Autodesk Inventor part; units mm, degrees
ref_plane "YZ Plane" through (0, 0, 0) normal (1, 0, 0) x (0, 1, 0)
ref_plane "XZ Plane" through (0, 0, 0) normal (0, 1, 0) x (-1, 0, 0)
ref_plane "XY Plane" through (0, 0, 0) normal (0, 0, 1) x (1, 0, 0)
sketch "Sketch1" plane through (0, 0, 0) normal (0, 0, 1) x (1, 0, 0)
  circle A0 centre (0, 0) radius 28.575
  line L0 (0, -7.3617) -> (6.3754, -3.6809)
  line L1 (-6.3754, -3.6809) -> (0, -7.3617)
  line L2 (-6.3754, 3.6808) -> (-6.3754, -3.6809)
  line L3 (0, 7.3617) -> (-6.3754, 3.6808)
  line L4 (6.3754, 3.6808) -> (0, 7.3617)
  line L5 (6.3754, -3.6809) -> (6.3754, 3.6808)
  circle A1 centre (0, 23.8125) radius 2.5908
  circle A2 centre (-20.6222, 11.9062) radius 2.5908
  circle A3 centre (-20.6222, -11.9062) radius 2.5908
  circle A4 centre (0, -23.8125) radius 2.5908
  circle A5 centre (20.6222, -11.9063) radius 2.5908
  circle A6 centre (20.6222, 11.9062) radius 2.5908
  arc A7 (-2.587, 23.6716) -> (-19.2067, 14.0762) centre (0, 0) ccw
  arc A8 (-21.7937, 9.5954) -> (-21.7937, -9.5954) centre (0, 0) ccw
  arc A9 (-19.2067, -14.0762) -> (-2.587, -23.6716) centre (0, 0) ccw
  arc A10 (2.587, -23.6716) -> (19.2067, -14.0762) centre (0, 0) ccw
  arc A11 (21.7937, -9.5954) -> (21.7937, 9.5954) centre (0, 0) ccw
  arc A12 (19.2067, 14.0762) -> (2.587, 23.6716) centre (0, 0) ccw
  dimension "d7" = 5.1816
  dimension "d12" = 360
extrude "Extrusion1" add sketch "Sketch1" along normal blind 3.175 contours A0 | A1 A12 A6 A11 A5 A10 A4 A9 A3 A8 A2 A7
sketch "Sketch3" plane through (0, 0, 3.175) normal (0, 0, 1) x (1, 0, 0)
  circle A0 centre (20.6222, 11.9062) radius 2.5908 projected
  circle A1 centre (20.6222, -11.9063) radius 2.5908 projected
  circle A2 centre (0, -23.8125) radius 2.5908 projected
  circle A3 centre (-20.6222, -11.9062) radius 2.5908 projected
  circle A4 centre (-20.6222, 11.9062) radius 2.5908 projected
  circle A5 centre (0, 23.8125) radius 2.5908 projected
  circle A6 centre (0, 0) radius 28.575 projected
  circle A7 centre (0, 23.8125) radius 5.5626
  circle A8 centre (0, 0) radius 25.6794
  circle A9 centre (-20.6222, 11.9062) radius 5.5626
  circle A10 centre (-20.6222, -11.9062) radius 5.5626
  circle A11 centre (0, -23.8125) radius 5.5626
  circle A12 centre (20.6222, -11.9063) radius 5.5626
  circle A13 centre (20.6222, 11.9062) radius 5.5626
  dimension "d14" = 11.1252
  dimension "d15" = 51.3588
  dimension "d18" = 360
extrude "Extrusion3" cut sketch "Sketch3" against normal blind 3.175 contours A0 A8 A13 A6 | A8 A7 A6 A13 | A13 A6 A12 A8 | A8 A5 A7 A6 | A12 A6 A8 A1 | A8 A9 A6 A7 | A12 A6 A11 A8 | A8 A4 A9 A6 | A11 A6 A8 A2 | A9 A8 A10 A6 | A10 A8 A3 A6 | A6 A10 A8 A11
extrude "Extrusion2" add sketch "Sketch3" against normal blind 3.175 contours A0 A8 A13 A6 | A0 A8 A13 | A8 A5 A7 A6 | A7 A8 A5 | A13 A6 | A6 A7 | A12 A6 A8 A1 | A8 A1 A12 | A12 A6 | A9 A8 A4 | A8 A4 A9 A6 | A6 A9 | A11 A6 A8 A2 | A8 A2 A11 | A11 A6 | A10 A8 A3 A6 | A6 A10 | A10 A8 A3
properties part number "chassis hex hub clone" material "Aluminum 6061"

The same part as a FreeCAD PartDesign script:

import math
import FreeCAD as App
import Part
import Sketcher

V = App.Vector
Q = App.Units.Quantity


def add_polygon(sketch, points):
    """Adds a closed chain of lines whose ends are joined by coincident constraints."""
    first, n = sketch.GeometryCount, len(points)
    for a, b in zip(points, points[1:] + points[:1]):
        sketch.addGeometry(Part.LineSegment(App.Vector(*a, 0), App.Vector(*b, 0)), False)
    for i in range(n):
        sketch.addConstraint(Sketcher.Constraint("Coincident", first + i, 2, first + (i + 1) % n, 1))

doc = App.newDocument("Part")
params = doc.addObject("Spreadsheet::Sheet", "Params")
for row, (alias, value) in enumerate([
    ("sketch1_diameter", "0.204 in"),
    ("sketch1_diameter2", "2.25 in"),
    ("pad1_length", "0.125 in"),
    ("sketch2_radius", "1.011 in"),
    ("sketch2_diameter", "2.25 in"),
    ("sketch2_radius2", "0.102 in"),
    ("pocket1_length", "0.125 in"),
    ("sketch3_diameter", "0.438 in"),
    ("sketch3_diameter2", "0.204 in"),
    ("pad2_length", "0.125 in"),
], start=1):
    params.set(f"A{row}", alias)
    params.set(f"B{row}", "=" + value)
    params.setAlias(f"B{row}", alias)

body = doc.addObject("PartDesign::Body", "Body")

# Sketch on XY plane
sketch1 = doc.addObject("Sketcher::SketchObject", "Sketch")
body.addObject(sketch1)
sketch1.AttachmentSupport = (doc.XY_Plane, [""])
sketch1.MapMode = "FlatFace"
sketch1.addGeometry(Part.Circle(V(0, 0, 0), V(0, 0, 1), 28.575), False)  # 0
sketch1.addGeometry(Part.Circle(V(0, 23.8125, 0), V(0, 0, 1), 2.5908), False)  # 1
sketch1.addGeometry(Part.Circle(V(-20.6222, 11.9062, 0), V(0, 0, 1), 2.5908), False)  # 2
sketch1.addGeometry(Part.Circle(V(-20.6222, -11.9062, 0), V(0, 0, 1), 2.5908), False)  # 3
sketch1.addGeometry(Part.Circle(V(0, -23.8125, 0), V(0, 0, 1), 2.5908), False)  # 4
sketch1.addGeometry(Part.Circle(V(20.6222, -11.9063, 0), V(0, 0, 1), 2.5908), False)  # 5
sketch1.addGeometry(Part.Circle(V(20.6222, 11.9062, 0), V(0, 0, 1), 2.5908), False)  # 6
add_polygon(sketch1, [(6.3754, -3.6809), (0, -7.3617), (-6.3754, -3.6809), (-6.3754, 3.6808), (0, 7.3617), (6.3754, 3.6808)])  # lines 7-12
sketch1.addConstraint([
    Sketcher.Constraint("Vertical", 9),
    Sketcher.Constraint("Vertical", 12),
    Sketcher.Constraint("Coincident", 0, 3, -1, 1),
    Sketcher.Constraint("Equal", 1, 2),
    Sketcher.Constraint("Equal", 2, 3),
    Sketcher.Constraint("Equal", 3, 4),
    Sketcher.Constraint("Equal", 4, 5),
    Sketcher.Constraint("Equal", 5, 6),
    Sketcher.Constraint("Symmetric", 1, 3, 4, 3, -1, 1),
    Sketcher.Constraint("Symmetric", 2, 3, 5, 3, -1, 1),
    Sketcher.Constraint("Symmetric", 3, 3, 6, 3, -1, 1),
    Sketcher.Constraint("Symmetric", 7, 2, 10, 2, -1, 1),
    Sketcher.Constraint("Symmetric", 8, 2, 11, 2, -1, 1),
    Sketcher.Constraint("Symmetric", 3, 3, 5, 3, -2),
    Sketcher.Constraint("PointOnObject", 1, 3, -2),
    Sketcher.Constraint("PointOnObject", 7, 2, -2),
    Sketcher.Constraint("Parallel", 7, 10),
    Sketcher.Constraint("Horizontal", 9, 2, 11, 2),
    Sketcher.Constraint("Diameter", 1, Q("0.204 in")),
    Sketcher.Constraint("Diameter", 0, Q("2.25 in")),
    Sketcher.Constraint("Angle", 7, Q("-150.0003 deg")),
    Sketcher.Constraint("DistanceY", -1, 1, 1, 3, Q("0.9375 in")),
    Sketcher.Constraint("DistanceY", -1, 1, 2, 3, Q("0.468748 in")),
    Sketcher.Constraint("DistanceX", 8, 2, -1, 1, Q("0.251 in")),
    Sketcher.Constraint("DistanceY", 9, 1, 9, 2, 7.3617),
    Sketcher.Constraint("DistanceX", 2, 3, -1, 1, Q("0.8119 in")),
])
sketch1.setExpression("Constraints[24]", "Params.sketch1_diameter")
sketch1.setExpression("Constraints[25]", "Params.sketch1_diameter2")
pad1 = doc.addObject("PartDesign::Pad", "Pad")
body.addObject(pad1)
pad1.Profile = sketch1
pad1.setExpression("Length", "Params.pad1_length")

# Sketch on XY plane
sketch2 = doc.addObject("Sketcher::SketchObject", "Sketch001")
body.addObject(sketch2)
sketch2.AttachmentSupport = (doc.XY_Plane, [""])
sketch2.MapMode = "FlatFace"
sketch2.AttachmentOffset = App.Placement(V(0, 0, 0.125 * 25.4), App.Rotation())
sketch2.addGeometry([
    Part.Circle(V(0, 0, 0), V(0, 0, 1), 28.575),  # 0
    Part.ArcOfCircle(Part.Circle(V(20.6222, 11.9062, 0), V(0, 0, 1), 2.5908), math.radians(-16.01615), math.radians(76.016014)),  # 1
    Part.ArcOfCircle(Part.Circle(V(0, 0, 0), V(0, 0, 1), 25.6794), math.radians(-25.837032), math.radians(25.836939)),  # 2
    Part.ArcOfCircle(Part.Circle(V(20.6222, -11.9063, 0), V(0, 0, 1), 2.5908), math.radians(-76.017875), math.radians(16.017595)),  # 3
    Part.ArcOfCircle(Part.Circle(V(0, 0, 0), V(0, 0, 1), 25.6794), math.radians(-85.836889), math.radians(-34.163249)),  # 4
    Part.ArcOfCircle(Part.Circle(V(0, -23.8125, 0), V(0, 0, 1), 2.5908), math.radians(-136.017765), math.radians(-43.982235)),  # 5
    Part.ArcOfCircle(Part.Circle(V(0, 0, 0), V(0, 0, 1), 25.6794), math.radians(-145.837076), math.radians(-94.163111)),  # 6
    Part.ArcOfCircle(Part.Circle(V(-20.6222, -11.9062, 0), V(0, 0, 1), 2.5908), math.radians(163.98385), math.radians(256.016014)),  # 7
    Part.ArcOfCircle(Part.Circle(V(0, 0, 0), V(0, 0, 1), 25.6794), math.radians(154.163061), math.radians(205.836939)),  # 8
    Part.ArcOfCircle(Part.Circle(V(-20.6222, 11.9062, 0), V(0, 0, 1), 2.5908), math.radians(103.983986), math.radians(196.01615)),  # 9
    Part.ArcOfCircle(Part.Circle(V(0, 0, 0), V(0, 0, 1), 25.6794), math.radians(94.163111), math.radians(145.837076)),  # 10
    Part.ArcOfCircle(Part.Circle(V(0, 23.8125, 0), V(0, 0, 1), 2.5908), math.radians(43.982235), math.radians(136.017765)),  # 11
    Part.ArcOfCircle(Part.Circle(V(0, 0, 0), V(0, 0, 1), 25.6794), math.radians(34.162924), math.radians(85.836889)),  # 12
], False)
sketch2.addConstraint([
    Sketcher.Constraint("Coincident", 1, 1, 2, 2),
    Sketcher.Constraint("Coincident", 2, 1, 3, 2),
    Sketcher.Constraint("Coincident", 3, 1, 4, 2),
    Sketcher.Constraint("Coincident", 4, 1, 5, 2),
    Sketcher.Constraint("Coincident", 5, 1, 6, 2),
    Sketcher.Constraint("Coincident", 6, 1, 7, 2),
    Sketcher.Constraint("Coincident", 7, 1, 8, 2),
    Sketcher.Constraint("Coincident", 8, 1, 9, 2),
    Sketcher.Constraint("Coincident", 9, 1, 10, 2),
    Sketcher.Constraint("Coincident", 10, 1, 11, 2),
    Sketcher.Constraint("Coincident", 11, 1, 12, 2),
    Sketcher.Constraint("Coincident", 12, 1, 1, 2),
    Sketcher.Constraint("Coincident", 0, 3, -1, 1),
    Sketcher.Constraint("Coincident", 2, 3, -1, 1),
    Sketcher.Constraint("Coincident", 4, 3, -1, 1),
    Sketcher.Constraint("Coincident", 6, 3, -1, 1),
    Sketcher.Constraint("Coincident", 8, 3, -1, 1),
    Sketcher.Constraint("Coincident", 10, 3, -1, 1),
    Sketcher.Constraint("Coincident", 12, 3, -1, 1),
    Sketcher.Constraint("Equal", 1, 3),
    Sketcher.Constraint("Equal", 2, 4),
    Sketcher.Constraint("Equal", 3, 5),
    Sketcher.Constraint("Equal", 4, 6),
    Sketcher.Constraint("Equal", 5, 7),
    Sketcher.Constraint("Equal", 6, 8),
    Sketcher.Constraint("Equal", 7, 9),
    Sketcher.Constraint("Equal", 8, 10),
    Sketcher.Constraint("Equal", 9, 11),
    Sketcher.Constraint("Equal", 10, 12),
    Sketcher.Constraint("Symmetric", 1, 3, 7, 3, -1, 1),
    Sketcher.Constraint("Symmetric", 3, 3, 9, 3, -1, 1),
    Sketcher.Constraint("Symmetric", 5, 3, 11, 3, -1, 1),
    Sketcher.Constraint("Symmetric", 3, 3, 7, 3, -2),
    Sketcher.Constraint("PointOnObject", 5, 3, -2),
    Sketcher.Constraint("Radius", 2, Q("1.011 in")),
    Sketcher.Constraint("Diameter", 0, Q("2.25 in")),
    Sketcher.Constraint("Radius", 1, Q("0.102 in")),
    Sketcher.Constraint("DistanceY", -1, 1, 1, 3, Q("0.468748 in")),
    Sketcher.Constraint("DistanceY", 5, 3, -1, 1, Q("0.9375 in")),
    Sketcher.Constraint("DistanceX", -1, 1, 1, 3, Q("0.8119 in")),
])
sketch2.setExpression("Constraints[34]", "Params.sketch2_radius")
sketch2.setExpression("Constraints[35]", "Params.sketch2_diameter")
sketch2.setExpression("Constraints[36]", "Params.sketch2_radius2")
pocket1 = doc.addObject("PartDesign::Pocket", "Pocket")
body.addObject(pocket1)
pocket1.Profile = sketch2
pocket1.setExpression("Length", "Params.pocket1_length")

# Sketch on XY plane
sketch3 = doc.addObject("Sketcher::SketchObject", "Sketch002")
body.addObject(sketch3)
sketch3.AttachmentSupport = (doc.XY_Plane, [""])
sketch3.MapMode = "FlatFace"
sketch3.AttachmentOffset = App.Placement(V(0, 0, 0.125 * 25.4), App.Rotation())
sketch3.addGeometry([
    Part.Circle(V(20.6222, 11.9062, 0), V(0, 0, 1), 5.5626),  # 0
    Part.Circle(V(20.6222, 11.9062, 0), V(0, 0, 1), 2.5908),  # 1
    Part.Circle(V(0, 23.8125, 0), V(0, 0, 1), 5.5626),  # 2
    Part.Circle(V(0, 23.8125, 0), V(0, 0, 1), 2.5908),  # 3
    Part.Circle(V(20.6222, -11.9063, 0), V(0, 0, 1), 5.5626),  # 4
    Part.Circle(V(20.6222, -11.9063, 0), V(0, 0, 1), 2.5908),  # 5
    Part.Circle(V(-20.6222, 11.9062, 0), V(0, 0, 1), 5.5626),  # 6
    Part.Circle(V(-20.6222, 11.9062, 0), V(0, 0, 1), 2.5908),  # 7
    Part.Circle(V(0, -23.8125, 0), V(0, 0, 1), 5.5626),  # 8
    Part.Circle(V(0, -23.8125, 0), V(0, 0, 1), 2.5908),  # 9
    Part.Circle(V(-20.6222, -11.9062, 0), V(0, 0, 1), 5.5626),  # 10
    Part.Circle(V(-20.6222, -11.9062, 0), V(0, 0, 1), 2.5908),  # 11
], False)
sketch3.addConstraint([
    Sketcher.Constraint("Coincident", 1, 3, 0, 3),
    Sketcher.Constraint("Coincident", 3, 3, 2, 3),
    Sketcher.Constraint("Coincident", 5, 3, 4, 3),
    Sketcher.Constraint("Coincident", 7, 3, 6, 3),
    Sketcher.Constraint("Coincident", 9, 3, 8, 3),
    Sketcher.Constraint("Coincident", 11, 3, 10, 3),
    Sketcher.Constraint("Equal", 0, 2),
    Sketcher.Constraint("Equal", 1, 3),
    Sketcher.Constraint("Equal", 2, 4),
    Sketcher.Constraint("Equal", 3, 5),
    Sketcher.Constraint("Equal", 4, 6),
    Sketcher.Constraint("Equal", 5, 7),
    Sketcher.Constraint("Equal", 6, 8),
    Sketcher.Constraint("Equal", 7, 9),
    Sketcher.Constraint("Equal", 8, 10),
    Sketcher.Constraint("Equal", 9, 11),
    Sketcher.Constraint("Symmetric", 4, 3, 6, 3, -1, 1),
    Sketcher.Constraint("Symmetric", 2, 3, 8, 3, -1, 1),
    Sketcher.Constraint("Symmetric", 0, 3, 10, 3, -1, 1),
    Sketcher.Constraint("Symmetric", 0, 3, 6, 3, -2),
    Sketcher.Constraint("PointOnObject", 2, 3, -2),
    Sketcher.Constraint("Diameter", 0, Q("0.438 in")),
    Sketcher.Constraint("Diameter", 1, Q("0.204 in")),
    Sketcher.Constraint("DistanceY", -1, 1, 0, 3, Q("0.468748 in")),
    Sketcher.Constraint("DistanceY", -1, 1, 2, 3, Q("0.9375 in")),
    Sketcher.Constraint("DistanceX", -1, 1, 0, 3, Q("0.8119 in")),
])
sketch3.setExpression("Constraints[21]", "Params.sketch3_diameter")
sketch3.setExpression("Constraints[22]", "Params.sketch3_diameter2")
pad2 = doc.addObject("PartDesign::Pad", "Pad001")
body.addObject(pad2)
pad2.Profile = sketch3
pad2.setExpression("Length", "Params.pad2_length")
pad2.Reversed = True

doc.recompute()
